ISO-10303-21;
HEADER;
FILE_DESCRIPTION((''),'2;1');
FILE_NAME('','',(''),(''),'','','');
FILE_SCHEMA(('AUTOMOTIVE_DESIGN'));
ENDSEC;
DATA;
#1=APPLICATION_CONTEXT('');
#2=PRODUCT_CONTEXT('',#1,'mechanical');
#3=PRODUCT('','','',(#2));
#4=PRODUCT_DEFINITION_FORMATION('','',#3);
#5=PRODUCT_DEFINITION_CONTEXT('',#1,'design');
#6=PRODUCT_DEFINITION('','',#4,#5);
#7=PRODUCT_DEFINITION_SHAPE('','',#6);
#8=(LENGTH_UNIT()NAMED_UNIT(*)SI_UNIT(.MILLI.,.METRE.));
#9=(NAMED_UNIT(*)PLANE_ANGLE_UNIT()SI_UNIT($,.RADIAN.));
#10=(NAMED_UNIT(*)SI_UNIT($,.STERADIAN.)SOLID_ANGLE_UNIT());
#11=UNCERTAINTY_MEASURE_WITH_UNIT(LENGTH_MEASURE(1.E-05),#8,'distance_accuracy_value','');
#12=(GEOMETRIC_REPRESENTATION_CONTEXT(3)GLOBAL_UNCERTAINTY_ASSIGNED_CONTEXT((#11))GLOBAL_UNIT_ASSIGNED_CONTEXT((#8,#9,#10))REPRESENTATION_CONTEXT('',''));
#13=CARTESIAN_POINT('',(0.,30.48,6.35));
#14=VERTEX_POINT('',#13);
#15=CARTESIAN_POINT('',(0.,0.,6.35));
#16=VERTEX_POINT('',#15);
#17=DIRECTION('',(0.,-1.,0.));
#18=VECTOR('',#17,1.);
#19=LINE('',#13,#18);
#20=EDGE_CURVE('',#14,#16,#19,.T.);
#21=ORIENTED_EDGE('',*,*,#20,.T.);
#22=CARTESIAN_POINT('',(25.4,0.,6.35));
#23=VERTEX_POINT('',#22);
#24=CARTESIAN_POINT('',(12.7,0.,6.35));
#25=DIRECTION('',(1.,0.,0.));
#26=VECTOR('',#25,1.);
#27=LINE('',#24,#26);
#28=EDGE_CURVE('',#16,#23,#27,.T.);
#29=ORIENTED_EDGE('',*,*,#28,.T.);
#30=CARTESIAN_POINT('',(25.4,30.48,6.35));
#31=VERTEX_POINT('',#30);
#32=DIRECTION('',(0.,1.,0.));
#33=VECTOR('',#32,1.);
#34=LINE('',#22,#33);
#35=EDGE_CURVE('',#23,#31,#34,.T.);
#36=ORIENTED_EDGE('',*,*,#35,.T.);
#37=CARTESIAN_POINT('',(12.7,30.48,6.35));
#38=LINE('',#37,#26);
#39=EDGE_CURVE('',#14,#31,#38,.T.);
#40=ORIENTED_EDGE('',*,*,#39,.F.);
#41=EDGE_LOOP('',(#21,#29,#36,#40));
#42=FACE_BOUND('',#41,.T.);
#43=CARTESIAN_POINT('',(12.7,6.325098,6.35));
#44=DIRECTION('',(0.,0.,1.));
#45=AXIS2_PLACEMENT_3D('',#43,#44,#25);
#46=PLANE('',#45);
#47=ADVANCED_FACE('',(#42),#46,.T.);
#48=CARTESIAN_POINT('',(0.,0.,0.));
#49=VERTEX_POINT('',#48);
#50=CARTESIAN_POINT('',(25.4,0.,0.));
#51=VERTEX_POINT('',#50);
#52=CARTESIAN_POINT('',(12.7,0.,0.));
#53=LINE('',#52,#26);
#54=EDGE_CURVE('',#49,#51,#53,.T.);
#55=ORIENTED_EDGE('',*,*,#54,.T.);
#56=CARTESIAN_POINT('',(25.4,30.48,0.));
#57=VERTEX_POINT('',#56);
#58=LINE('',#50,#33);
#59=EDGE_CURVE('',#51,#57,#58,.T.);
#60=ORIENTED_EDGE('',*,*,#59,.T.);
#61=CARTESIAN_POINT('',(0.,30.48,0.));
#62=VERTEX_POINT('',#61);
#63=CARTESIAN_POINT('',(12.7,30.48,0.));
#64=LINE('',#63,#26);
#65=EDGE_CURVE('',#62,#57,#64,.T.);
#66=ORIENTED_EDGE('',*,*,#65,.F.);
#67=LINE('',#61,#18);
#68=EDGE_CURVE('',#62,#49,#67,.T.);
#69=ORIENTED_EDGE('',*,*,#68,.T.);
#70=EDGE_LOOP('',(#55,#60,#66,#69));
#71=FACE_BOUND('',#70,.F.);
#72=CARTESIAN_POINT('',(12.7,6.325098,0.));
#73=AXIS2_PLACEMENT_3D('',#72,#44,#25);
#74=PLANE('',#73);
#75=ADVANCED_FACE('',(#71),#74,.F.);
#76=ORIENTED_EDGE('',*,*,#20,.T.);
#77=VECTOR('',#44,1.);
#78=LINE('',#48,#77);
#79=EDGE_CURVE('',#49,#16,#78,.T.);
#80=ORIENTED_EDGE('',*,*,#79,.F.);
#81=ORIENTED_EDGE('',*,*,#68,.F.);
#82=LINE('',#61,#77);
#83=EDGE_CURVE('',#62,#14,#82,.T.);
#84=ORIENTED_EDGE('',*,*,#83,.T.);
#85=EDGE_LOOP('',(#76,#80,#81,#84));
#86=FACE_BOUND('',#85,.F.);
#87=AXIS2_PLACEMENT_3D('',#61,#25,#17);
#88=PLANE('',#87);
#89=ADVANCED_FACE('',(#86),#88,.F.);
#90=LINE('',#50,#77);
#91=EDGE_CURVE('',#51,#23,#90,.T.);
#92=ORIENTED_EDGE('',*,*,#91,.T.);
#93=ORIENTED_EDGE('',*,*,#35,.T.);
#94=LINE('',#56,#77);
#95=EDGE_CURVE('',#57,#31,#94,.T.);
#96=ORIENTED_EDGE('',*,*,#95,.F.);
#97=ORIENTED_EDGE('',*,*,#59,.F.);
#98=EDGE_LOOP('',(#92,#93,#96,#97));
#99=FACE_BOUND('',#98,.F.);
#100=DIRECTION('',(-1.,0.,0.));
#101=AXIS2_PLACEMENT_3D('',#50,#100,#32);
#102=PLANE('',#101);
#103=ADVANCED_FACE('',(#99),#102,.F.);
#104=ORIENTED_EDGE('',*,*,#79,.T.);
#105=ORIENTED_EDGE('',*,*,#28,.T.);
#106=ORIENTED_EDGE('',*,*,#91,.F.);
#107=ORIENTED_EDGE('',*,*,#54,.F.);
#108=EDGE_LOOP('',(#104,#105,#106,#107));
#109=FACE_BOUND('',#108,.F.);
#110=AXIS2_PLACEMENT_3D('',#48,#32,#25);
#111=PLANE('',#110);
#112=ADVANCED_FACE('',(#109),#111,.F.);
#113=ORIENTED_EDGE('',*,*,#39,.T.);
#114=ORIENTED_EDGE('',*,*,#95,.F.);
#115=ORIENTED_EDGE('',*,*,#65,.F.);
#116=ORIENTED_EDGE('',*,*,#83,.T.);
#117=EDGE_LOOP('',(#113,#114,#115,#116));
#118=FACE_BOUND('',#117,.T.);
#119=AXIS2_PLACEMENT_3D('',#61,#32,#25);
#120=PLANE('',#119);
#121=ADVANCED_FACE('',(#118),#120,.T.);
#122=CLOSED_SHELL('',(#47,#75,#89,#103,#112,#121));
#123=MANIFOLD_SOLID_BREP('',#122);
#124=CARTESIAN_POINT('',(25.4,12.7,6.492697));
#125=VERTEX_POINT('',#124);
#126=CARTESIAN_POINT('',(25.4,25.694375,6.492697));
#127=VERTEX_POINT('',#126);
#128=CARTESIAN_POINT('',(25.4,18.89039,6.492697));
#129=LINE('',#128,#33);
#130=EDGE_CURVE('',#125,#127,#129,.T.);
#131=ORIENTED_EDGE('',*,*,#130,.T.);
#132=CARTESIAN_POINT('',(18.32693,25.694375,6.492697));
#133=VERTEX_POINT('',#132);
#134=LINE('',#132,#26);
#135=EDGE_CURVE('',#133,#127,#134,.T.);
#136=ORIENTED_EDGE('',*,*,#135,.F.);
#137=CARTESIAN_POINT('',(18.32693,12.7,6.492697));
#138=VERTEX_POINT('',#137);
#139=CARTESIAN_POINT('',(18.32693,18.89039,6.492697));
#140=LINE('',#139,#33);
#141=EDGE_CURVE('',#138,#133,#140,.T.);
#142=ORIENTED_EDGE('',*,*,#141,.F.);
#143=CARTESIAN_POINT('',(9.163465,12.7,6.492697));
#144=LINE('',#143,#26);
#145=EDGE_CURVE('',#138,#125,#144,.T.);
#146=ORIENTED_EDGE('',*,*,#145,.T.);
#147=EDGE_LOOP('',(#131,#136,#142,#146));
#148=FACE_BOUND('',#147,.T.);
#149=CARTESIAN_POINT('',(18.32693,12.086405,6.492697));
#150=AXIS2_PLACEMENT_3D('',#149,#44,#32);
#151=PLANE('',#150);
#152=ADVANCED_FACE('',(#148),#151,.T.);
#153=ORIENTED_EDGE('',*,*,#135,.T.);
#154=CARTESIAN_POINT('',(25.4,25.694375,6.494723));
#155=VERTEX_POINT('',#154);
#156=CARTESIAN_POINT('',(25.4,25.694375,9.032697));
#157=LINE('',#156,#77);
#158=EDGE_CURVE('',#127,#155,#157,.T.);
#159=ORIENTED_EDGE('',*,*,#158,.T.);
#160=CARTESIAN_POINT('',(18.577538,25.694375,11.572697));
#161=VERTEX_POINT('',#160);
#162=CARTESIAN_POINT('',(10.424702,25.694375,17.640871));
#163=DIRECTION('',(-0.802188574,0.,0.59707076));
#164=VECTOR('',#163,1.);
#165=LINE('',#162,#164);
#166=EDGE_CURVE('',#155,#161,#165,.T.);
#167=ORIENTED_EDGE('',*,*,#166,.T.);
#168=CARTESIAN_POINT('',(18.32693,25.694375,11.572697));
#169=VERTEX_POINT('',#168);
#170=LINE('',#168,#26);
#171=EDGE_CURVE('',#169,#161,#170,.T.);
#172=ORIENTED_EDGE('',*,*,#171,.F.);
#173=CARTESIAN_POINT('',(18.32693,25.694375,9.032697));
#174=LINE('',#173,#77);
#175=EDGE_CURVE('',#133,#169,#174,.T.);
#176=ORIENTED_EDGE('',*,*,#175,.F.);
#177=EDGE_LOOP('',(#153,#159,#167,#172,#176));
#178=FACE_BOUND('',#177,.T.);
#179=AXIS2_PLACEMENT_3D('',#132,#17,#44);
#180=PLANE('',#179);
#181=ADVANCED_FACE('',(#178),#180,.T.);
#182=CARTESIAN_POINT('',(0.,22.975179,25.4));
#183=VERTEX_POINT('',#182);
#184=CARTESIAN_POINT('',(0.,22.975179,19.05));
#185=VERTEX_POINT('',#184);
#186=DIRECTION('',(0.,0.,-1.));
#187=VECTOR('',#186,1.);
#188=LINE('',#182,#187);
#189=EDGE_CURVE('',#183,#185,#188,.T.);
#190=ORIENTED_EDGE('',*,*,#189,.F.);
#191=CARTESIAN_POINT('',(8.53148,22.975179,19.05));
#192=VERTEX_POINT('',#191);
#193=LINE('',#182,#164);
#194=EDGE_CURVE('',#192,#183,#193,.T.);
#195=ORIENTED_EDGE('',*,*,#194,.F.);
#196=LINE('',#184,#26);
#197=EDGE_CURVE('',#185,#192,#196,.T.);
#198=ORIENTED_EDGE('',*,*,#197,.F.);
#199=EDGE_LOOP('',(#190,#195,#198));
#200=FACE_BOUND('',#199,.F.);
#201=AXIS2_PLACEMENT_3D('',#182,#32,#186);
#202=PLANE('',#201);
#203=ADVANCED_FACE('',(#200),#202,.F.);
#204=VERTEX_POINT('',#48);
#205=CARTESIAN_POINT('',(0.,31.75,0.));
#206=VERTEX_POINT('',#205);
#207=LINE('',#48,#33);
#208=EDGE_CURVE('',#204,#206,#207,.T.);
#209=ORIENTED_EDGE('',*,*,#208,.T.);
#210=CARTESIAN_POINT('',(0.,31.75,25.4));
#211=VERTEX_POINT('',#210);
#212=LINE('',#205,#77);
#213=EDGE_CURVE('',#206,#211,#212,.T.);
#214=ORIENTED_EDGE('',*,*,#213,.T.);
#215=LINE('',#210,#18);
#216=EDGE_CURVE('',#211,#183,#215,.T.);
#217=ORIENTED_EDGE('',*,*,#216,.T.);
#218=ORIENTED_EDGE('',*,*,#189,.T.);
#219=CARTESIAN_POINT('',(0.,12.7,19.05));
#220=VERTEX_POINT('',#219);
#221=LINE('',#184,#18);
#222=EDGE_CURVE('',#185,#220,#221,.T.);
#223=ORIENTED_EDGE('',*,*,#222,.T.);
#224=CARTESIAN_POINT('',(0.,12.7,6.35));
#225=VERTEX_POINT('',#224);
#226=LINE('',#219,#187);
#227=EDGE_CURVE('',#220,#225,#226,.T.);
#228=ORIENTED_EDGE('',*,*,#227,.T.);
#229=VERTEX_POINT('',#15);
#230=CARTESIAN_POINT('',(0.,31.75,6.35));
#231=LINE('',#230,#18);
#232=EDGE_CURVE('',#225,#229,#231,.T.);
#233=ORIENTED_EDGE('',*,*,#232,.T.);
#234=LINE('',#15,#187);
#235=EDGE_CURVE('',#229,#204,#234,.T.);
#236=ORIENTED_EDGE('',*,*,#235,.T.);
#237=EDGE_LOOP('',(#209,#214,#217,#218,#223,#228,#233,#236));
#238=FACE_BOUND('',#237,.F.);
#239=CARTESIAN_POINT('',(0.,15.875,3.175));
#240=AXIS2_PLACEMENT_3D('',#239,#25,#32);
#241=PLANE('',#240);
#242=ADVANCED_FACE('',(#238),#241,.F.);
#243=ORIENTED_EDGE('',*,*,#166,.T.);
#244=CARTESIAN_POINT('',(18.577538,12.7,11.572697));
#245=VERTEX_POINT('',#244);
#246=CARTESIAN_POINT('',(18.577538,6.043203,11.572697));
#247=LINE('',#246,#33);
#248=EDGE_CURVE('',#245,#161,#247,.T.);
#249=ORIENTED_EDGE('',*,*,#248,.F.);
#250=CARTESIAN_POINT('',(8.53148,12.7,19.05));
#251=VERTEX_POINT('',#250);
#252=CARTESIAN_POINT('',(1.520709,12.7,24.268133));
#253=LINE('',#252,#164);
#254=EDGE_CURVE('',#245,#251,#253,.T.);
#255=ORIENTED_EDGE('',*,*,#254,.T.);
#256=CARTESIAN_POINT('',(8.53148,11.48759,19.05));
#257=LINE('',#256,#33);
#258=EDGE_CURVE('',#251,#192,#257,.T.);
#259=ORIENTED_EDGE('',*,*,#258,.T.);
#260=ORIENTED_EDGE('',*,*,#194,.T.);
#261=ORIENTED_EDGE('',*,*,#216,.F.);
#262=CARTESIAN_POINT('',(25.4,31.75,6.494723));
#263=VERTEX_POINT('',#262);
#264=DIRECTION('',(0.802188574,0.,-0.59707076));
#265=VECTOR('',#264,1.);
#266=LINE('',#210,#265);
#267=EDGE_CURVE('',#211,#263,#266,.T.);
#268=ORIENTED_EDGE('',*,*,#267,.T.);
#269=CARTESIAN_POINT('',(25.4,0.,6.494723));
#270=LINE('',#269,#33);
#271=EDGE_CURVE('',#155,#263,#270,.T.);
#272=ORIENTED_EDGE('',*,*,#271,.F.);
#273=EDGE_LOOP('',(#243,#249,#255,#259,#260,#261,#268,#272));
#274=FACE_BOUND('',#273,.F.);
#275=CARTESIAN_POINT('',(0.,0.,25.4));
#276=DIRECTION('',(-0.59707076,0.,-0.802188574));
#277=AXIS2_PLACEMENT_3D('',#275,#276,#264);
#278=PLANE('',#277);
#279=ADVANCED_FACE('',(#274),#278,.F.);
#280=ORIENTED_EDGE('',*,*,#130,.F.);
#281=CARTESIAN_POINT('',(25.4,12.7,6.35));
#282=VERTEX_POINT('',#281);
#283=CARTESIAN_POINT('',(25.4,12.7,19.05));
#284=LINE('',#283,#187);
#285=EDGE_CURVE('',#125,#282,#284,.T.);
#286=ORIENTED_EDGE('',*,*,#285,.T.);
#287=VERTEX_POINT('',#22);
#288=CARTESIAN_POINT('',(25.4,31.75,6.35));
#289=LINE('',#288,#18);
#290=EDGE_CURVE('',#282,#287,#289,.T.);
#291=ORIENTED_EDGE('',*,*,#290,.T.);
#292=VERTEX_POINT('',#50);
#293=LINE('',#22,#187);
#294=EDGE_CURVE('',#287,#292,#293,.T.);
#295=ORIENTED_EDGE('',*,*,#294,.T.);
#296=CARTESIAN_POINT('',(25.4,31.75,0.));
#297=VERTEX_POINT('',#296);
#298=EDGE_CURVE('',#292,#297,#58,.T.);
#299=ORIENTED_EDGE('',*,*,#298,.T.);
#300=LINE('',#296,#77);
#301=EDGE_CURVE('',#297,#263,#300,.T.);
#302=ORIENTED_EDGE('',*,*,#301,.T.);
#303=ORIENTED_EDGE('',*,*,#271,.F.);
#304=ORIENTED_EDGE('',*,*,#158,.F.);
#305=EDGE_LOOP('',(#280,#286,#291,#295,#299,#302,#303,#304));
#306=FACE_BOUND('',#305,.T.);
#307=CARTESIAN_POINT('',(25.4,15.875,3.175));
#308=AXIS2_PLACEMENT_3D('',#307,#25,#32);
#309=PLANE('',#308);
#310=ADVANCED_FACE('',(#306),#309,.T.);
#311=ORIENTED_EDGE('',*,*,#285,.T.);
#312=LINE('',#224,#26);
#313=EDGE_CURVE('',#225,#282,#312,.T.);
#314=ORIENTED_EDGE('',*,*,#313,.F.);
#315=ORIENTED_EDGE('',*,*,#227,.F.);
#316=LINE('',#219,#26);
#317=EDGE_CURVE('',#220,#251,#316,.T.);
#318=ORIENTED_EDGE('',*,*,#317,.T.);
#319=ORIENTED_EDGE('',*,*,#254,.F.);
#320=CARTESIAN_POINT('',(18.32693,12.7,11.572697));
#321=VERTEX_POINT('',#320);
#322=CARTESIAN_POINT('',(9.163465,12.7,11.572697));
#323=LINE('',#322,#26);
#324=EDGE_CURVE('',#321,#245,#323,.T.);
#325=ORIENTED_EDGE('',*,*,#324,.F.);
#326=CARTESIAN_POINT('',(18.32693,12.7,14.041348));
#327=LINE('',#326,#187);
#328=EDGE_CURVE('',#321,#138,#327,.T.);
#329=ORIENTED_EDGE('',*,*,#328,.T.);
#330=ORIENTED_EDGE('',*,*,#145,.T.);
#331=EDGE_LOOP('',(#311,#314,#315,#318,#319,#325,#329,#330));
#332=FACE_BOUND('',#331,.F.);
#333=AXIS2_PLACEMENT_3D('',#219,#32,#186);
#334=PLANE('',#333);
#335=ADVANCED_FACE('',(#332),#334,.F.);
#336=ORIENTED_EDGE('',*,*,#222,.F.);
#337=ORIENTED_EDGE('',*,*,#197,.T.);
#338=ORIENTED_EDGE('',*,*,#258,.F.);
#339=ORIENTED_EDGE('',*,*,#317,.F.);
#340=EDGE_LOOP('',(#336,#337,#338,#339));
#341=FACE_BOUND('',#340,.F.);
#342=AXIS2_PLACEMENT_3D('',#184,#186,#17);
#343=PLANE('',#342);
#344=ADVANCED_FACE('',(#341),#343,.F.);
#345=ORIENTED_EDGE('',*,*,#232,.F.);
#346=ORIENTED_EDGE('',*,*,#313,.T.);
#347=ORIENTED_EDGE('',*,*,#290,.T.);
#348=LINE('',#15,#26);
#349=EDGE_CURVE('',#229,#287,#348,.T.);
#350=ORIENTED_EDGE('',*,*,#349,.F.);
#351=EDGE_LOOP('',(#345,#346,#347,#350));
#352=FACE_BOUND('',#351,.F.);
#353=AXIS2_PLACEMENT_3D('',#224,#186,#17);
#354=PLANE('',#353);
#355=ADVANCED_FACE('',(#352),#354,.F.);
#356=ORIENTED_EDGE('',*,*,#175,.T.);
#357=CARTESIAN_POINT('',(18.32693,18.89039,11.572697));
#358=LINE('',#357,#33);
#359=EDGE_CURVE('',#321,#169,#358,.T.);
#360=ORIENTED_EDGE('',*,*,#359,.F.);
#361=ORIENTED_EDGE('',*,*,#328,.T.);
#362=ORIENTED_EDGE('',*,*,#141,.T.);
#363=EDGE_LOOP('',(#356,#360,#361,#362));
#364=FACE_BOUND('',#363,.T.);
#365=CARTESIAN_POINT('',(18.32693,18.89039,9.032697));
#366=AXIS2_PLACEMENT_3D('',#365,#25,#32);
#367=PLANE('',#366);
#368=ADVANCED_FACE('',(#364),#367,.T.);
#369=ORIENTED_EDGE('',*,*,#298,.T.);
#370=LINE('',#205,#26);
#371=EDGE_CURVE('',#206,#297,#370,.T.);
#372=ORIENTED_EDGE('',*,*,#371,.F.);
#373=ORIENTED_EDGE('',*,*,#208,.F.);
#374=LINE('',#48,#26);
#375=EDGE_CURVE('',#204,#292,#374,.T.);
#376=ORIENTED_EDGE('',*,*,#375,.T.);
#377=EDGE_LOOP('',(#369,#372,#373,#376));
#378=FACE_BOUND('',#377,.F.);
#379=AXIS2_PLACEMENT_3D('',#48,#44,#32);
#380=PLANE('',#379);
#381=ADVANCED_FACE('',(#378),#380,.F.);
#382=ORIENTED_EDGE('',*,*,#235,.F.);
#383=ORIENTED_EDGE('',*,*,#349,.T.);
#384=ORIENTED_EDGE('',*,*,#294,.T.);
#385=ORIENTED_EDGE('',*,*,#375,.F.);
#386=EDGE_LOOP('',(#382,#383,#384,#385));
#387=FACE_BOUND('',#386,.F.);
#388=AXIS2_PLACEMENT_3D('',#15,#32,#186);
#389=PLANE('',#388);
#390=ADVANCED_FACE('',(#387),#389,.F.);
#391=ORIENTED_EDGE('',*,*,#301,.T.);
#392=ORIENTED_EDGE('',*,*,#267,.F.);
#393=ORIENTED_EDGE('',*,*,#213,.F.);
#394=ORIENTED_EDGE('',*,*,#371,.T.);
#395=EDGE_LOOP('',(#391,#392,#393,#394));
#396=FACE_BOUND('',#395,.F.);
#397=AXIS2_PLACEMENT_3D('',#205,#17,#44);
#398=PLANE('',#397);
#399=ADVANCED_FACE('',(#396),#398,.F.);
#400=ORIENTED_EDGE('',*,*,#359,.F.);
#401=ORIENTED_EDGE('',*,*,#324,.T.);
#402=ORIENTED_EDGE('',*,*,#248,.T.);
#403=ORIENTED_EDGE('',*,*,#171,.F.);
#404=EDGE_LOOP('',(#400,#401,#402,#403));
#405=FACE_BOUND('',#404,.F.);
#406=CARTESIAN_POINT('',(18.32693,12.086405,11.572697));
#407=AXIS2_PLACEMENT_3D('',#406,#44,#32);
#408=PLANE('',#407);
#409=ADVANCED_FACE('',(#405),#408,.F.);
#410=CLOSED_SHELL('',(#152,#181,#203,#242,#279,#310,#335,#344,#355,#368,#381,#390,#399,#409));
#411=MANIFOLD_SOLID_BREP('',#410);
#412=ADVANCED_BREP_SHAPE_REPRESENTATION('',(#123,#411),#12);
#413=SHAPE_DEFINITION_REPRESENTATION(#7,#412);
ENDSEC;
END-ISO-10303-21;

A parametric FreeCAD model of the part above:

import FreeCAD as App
import Part
import Sketcher
from FreeCAD import Vector
Q = App.Units.Quantity


def add_polygon(sketch, points):
    """Adds a closed chain of lines whose ends are joined by coincident constraints."""
    first, n = sketch.GeometryCount, len(points)
    for a, b in zip(points, points[1:] + points[:1]):
        sketch.addGeometry(Part.LineSegment(App.Vector(*a, 0), App.Vector(*b, 0)), False)
    for i in range(n):
        sketch.addConstraint(Sketcher.Constraint("Coincident", first + i, 2, first + (i + 1) % n, 1))

doc = App.newDocument("Part")
body = doc.addObject("PartDesign::Body", "Body")

sketch1 = body.newObject("Sketcher::SketchObject", "Sketch")
sketch1.AttachmentSupport = (doc.getObject("YZ_Plane"), [""])
sketch1.MapMode = "FlatFace"
add_polygon(sketch1, [(0, 6), (0, 0), (32, 0), (32, 25), (23, 25), (23, 19), (13, 19), (13, 6)])
sketch1.addConstraint(Sketcher.Constraint("Vertical", 0))
sketch1.addConstraint(Sketcher.Constraint("Horizontal", 1))
sketch1.addConstraint(Sketcher.Constraint("Vertical", 2))
sketch1.addConstraint(Sketcher.Constraint("Horizontal", 3))
sketch1.addConstraint(Sketcher.Constraint("Vertical", 4))
sketch1.addConstraint(Sketcher.Constraint("Horizontal", 5))
sketch1.addConstraint(Sketcher.Constraint("Vertical", 6))
sketch1.addConstraint(Sketcher.Constraint("Horizontal", 7))
sketch1.addConstraint(Sketcher.Constraint("Coincident", 0, 2, -1, 1))
sketch1.addConstraint(Sketcher.Constraint("Equal", 0, 4))
sketch1.addConstraint(Sketcher.Constraint("Equal", 7, 6))
sketch1.addConstraint(Sketcher.Constraint("DistanceY", 2, 1, 2, 2, Q("1 in")))
sketch1.addConstraint(Sketcher.Constraint("DistanceX", 7, 2, 7, 1, Q("0.5 in")))
sketch1.addConstraint(Sketcher.Constraint("DistanceX", 1, 1, 1, 2, Q("1.25 in")))
sketch1.addConstraint(Sketcher.Constraint("DistanceX", 3, 2, 3, 1, 8.774821))
pad1 = body.newObject("PartDesign::Pad", "Pad")
pad1.Profile = sketch1
pad1.Length = Q("1 in")

sketch2 = body.newObject("Sketcher::SketchObject", "Sketch001")
sketch2.AttachmentSupport = (doc.getObject("XZ_Plane"), [""])
sketch2.MapMode = "FlatFace"
add_polygon(sketch2, [(25, 25), (0, 25), (25, 6)])
sketch2.addConstraint(Sketcher.Constraint("Horizontal", 0))
sketch2.addConstraint(Sketcher.Constraint("Vertical", 2))
sketch2.addConstraint(Sketcher.Constraint("PointOnObject", 0, 2, -2))
sketch2.addConstraint(Sketcher.Constraint("DistanceX", 0, 2, 0, 1, Q("1 in")))
sketch2.addConstraint(Sketcher.Constraint("DistanceY", -1, 1, 0, 2, Q("1 in")))
sketch2.addConstraint(Sketcher.Constraint("DistanceY", 2, 1, 2, 2, 18.905277))
pocket1 = body.newObject("PartDesign::Pocket", "Pocket")
pocket1.Profile = sketch2
pocket1.Length = Q("1.25 in")

sketch3 = body.newObject("Sketcher::SketchObject", "Sketch002")
sketch3.AttachmentSupport = (doc.getObject("YZ_Plane"), [""])
sketch3.MapMode = "FlatFace"
sketch3.AttachmentOffset = App.Placement(Vector(0, 0, 18.32693), App.Rotation())
add_polygon(sketch3, [(12, 12), (12, 6), (26, 6), (26, 12)])
sketch3.addConstraint(Sketcher.Constraint("Vertical", 0))
sketch3.addConstraint(Sketcher.Constraint("Horizontal", 1))
sketch3.addConstraint(Sketcher.Constraint("Vertical", 2))
sketch3.addConstraint(Sketcher.Constraint("Horizontal", 3))
sketch3.addConstraint(Sketcher.Constraint("DistanceY", 0, 2, 0, 1, Q("0.2 in")))
sketch3.addConstraint(Sketcher.Constraint("DistanceX", 1, 1, 1, 2, 13.607969))
sketch3.addConstraint(Sketcher.Constraint("DistanceX", -1, 1, 0, 2, 12.086405))
sketch3.addConstraint(Sketcher.Constraint("DistanceY", -1, 1, 0, 2, 6.492697))
pocket2 = body.newObject("PartDesign::Pocket", "Pocket001")
pocket2.Profile = sketch3
pocket2.Length = 7.07307
pocket2.Reversed = True
body2 = doc.addObject("PartDesign::Body", "Body001")

sketch4 = body2.newObject("Sketcher::SketchObject", "Sketch003")
sketch4.AttachmentSupport = (doc.getObject("XY_Plane001"), [""])
sketch4.MapMode = "FlatFace"
add_polygon(sketch4, [(0, 0), (25, 0), (25, 30), (0, 30)])
sketch4.addConstraint(Sketcher.Constraint("Horizontal", 0))
sketch4.addConstraint(Sketcher.Constraint("Vertical", 1))
sketch4.addConstraint(Sketcher.Constraint("Horizontal", 2))
sketch4.addConstraint(Sketcher.Constraint("Vertical", 3))
sketch4.addConstraint(Sketcher.Constraint("Coincident", 3, 2, -1, 1))
sketch4.addConstraint(Sketcher.Constraint("DistanceX", 0, 1, 0, 2, Q("1 in")))
sketch4.addConstraint(Sketcher.Constraint("DistanceY", 1, 1, 1, 2, Q("1.2 in")))
pad2 = body2.newObject("PartDesign::Pad", "Pad001")
pad2.Profile = sketch4
pad2.Length = Q("0.25 in")

doc.recompute()
